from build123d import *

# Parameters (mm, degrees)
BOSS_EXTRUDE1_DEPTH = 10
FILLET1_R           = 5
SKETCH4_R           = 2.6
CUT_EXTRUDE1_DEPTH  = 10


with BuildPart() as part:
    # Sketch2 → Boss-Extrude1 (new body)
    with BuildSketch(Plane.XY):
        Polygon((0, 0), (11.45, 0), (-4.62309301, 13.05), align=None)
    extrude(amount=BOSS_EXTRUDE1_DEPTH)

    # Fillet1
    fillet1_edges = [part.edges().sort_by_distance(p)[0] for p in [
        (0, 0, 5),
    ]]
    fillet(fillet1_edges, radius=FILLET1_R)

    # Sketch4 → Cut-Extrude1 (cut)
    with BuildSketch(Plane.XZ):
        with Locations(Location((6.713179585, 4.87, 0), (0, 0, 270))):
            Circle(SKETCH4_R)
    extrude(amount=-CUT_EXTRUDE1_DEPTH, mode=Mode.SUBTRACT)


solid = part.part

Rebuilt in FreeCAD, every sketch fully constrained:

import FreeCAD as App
import Part
import Sketcher

V = App.Vector
Q = App.Units.Quantity


def edges_at(feature, points):
    """Names of the edges that pass closest to the given points."""
    edges = feature.Shape.Edges
    near = lambda p: min(range(len(edges)), key=lambda i: edges[i].distToShape(Part.Vertex(*p))[0])
    return sorted({f"Edge{near(p) + 1}" for p in points})

doc = App.newDocument("Part")
body = doc.addObject("PartDesign::Body", "Body")

# Sketch on XY plane
sketch1 = body.newObject("Sketcher::SketchObject", "Sketch")
sketch1.AttachmentSupport = (doc.getObject("XY_Plane"), [""])
sketch1.MapMode = "FlatFace"
sketch1.addGeometry(Part.LineSegment(V(0, 0, 0), V(11, 0, 0)), False)
sketch1.addGeometry(Part.LineSegment(V(11, 0, 0), V(-5, 13, 0)), False)
sketch1.addGeometry(Part.LineSegment(V(-5, 13, 0), V(0, 0, 0)), False)
sketch1.addConstraint(Sketcher.Constraint("Coincident", 0, 2, 1, 1))
sketch1.addConstraint(Sketcher.Constraint("Coincident", 1, 2, 2, 1))
sketch1.addConstraint(Sketcher.Constraint("Coincident", 2, 2, 0, 1))
sketch1.addConstraint(Sketcher.Constraint("Horizontal", 0))
sketch1.addConstraint(Sketcher.Constraint("Coincident", 2, 2, -1, 1))
sketch1.addConstraint(Sketcher.Constraint("DistanceX", 0, 1, 0, 2, Q("11.45 mm")))
sketch1.addConstraint(Sketcher.Constraint("DistanceY", -1, 1, 1, 2, Q("13.05 mm")))
sketch1.addConstraint(Sketcher.Constraint("Distance", 2, Q("13.844692 mm")))
pad1 = body.newObject("PartDesign::Pad", "Pad")
pad1.Profile = sketch1
pad1.Length = 10
doc.recompute()

fillet = body.newObject("PartDesign::Fillet", "Fillet")
fillet.Base = (pad1, edges_at(pad1, [(0, 0, 5)]))
fillet.Radius = 5

# Sketch on XZ plane
sketch2 = body.newObject("Sketcher::SketchObject", "Sketch001")
sketch2.AttachmentSupport = (doc.getObject("XZ_Plane"), [""])
sketch2.MapMode = "FlatFace"
sketch2.addGeometry(Part.Circle(V(6.7, 4.9, 0), V(0, 0, 1), 2.6), False)
sketch2.addConstraint(Sketcher.Constraint("Diameter", 0, Q("5.2 mm")))
sketch2.addConstraint(Sketcher.Constraint("DistanceY", -1, 1, 0, 3, Q("4.87 mm")))
sketch2.addConstraint(Sketcher.Constraint("DistanceX", -1, 1, 0, 3, Q("6.71318 mm")))
pocket1 = body.newObject("PartDesign::Pocket", "Pocket")
pocket1.Profile = sketch2
pocket1.Length = 10

doc.recompute()
